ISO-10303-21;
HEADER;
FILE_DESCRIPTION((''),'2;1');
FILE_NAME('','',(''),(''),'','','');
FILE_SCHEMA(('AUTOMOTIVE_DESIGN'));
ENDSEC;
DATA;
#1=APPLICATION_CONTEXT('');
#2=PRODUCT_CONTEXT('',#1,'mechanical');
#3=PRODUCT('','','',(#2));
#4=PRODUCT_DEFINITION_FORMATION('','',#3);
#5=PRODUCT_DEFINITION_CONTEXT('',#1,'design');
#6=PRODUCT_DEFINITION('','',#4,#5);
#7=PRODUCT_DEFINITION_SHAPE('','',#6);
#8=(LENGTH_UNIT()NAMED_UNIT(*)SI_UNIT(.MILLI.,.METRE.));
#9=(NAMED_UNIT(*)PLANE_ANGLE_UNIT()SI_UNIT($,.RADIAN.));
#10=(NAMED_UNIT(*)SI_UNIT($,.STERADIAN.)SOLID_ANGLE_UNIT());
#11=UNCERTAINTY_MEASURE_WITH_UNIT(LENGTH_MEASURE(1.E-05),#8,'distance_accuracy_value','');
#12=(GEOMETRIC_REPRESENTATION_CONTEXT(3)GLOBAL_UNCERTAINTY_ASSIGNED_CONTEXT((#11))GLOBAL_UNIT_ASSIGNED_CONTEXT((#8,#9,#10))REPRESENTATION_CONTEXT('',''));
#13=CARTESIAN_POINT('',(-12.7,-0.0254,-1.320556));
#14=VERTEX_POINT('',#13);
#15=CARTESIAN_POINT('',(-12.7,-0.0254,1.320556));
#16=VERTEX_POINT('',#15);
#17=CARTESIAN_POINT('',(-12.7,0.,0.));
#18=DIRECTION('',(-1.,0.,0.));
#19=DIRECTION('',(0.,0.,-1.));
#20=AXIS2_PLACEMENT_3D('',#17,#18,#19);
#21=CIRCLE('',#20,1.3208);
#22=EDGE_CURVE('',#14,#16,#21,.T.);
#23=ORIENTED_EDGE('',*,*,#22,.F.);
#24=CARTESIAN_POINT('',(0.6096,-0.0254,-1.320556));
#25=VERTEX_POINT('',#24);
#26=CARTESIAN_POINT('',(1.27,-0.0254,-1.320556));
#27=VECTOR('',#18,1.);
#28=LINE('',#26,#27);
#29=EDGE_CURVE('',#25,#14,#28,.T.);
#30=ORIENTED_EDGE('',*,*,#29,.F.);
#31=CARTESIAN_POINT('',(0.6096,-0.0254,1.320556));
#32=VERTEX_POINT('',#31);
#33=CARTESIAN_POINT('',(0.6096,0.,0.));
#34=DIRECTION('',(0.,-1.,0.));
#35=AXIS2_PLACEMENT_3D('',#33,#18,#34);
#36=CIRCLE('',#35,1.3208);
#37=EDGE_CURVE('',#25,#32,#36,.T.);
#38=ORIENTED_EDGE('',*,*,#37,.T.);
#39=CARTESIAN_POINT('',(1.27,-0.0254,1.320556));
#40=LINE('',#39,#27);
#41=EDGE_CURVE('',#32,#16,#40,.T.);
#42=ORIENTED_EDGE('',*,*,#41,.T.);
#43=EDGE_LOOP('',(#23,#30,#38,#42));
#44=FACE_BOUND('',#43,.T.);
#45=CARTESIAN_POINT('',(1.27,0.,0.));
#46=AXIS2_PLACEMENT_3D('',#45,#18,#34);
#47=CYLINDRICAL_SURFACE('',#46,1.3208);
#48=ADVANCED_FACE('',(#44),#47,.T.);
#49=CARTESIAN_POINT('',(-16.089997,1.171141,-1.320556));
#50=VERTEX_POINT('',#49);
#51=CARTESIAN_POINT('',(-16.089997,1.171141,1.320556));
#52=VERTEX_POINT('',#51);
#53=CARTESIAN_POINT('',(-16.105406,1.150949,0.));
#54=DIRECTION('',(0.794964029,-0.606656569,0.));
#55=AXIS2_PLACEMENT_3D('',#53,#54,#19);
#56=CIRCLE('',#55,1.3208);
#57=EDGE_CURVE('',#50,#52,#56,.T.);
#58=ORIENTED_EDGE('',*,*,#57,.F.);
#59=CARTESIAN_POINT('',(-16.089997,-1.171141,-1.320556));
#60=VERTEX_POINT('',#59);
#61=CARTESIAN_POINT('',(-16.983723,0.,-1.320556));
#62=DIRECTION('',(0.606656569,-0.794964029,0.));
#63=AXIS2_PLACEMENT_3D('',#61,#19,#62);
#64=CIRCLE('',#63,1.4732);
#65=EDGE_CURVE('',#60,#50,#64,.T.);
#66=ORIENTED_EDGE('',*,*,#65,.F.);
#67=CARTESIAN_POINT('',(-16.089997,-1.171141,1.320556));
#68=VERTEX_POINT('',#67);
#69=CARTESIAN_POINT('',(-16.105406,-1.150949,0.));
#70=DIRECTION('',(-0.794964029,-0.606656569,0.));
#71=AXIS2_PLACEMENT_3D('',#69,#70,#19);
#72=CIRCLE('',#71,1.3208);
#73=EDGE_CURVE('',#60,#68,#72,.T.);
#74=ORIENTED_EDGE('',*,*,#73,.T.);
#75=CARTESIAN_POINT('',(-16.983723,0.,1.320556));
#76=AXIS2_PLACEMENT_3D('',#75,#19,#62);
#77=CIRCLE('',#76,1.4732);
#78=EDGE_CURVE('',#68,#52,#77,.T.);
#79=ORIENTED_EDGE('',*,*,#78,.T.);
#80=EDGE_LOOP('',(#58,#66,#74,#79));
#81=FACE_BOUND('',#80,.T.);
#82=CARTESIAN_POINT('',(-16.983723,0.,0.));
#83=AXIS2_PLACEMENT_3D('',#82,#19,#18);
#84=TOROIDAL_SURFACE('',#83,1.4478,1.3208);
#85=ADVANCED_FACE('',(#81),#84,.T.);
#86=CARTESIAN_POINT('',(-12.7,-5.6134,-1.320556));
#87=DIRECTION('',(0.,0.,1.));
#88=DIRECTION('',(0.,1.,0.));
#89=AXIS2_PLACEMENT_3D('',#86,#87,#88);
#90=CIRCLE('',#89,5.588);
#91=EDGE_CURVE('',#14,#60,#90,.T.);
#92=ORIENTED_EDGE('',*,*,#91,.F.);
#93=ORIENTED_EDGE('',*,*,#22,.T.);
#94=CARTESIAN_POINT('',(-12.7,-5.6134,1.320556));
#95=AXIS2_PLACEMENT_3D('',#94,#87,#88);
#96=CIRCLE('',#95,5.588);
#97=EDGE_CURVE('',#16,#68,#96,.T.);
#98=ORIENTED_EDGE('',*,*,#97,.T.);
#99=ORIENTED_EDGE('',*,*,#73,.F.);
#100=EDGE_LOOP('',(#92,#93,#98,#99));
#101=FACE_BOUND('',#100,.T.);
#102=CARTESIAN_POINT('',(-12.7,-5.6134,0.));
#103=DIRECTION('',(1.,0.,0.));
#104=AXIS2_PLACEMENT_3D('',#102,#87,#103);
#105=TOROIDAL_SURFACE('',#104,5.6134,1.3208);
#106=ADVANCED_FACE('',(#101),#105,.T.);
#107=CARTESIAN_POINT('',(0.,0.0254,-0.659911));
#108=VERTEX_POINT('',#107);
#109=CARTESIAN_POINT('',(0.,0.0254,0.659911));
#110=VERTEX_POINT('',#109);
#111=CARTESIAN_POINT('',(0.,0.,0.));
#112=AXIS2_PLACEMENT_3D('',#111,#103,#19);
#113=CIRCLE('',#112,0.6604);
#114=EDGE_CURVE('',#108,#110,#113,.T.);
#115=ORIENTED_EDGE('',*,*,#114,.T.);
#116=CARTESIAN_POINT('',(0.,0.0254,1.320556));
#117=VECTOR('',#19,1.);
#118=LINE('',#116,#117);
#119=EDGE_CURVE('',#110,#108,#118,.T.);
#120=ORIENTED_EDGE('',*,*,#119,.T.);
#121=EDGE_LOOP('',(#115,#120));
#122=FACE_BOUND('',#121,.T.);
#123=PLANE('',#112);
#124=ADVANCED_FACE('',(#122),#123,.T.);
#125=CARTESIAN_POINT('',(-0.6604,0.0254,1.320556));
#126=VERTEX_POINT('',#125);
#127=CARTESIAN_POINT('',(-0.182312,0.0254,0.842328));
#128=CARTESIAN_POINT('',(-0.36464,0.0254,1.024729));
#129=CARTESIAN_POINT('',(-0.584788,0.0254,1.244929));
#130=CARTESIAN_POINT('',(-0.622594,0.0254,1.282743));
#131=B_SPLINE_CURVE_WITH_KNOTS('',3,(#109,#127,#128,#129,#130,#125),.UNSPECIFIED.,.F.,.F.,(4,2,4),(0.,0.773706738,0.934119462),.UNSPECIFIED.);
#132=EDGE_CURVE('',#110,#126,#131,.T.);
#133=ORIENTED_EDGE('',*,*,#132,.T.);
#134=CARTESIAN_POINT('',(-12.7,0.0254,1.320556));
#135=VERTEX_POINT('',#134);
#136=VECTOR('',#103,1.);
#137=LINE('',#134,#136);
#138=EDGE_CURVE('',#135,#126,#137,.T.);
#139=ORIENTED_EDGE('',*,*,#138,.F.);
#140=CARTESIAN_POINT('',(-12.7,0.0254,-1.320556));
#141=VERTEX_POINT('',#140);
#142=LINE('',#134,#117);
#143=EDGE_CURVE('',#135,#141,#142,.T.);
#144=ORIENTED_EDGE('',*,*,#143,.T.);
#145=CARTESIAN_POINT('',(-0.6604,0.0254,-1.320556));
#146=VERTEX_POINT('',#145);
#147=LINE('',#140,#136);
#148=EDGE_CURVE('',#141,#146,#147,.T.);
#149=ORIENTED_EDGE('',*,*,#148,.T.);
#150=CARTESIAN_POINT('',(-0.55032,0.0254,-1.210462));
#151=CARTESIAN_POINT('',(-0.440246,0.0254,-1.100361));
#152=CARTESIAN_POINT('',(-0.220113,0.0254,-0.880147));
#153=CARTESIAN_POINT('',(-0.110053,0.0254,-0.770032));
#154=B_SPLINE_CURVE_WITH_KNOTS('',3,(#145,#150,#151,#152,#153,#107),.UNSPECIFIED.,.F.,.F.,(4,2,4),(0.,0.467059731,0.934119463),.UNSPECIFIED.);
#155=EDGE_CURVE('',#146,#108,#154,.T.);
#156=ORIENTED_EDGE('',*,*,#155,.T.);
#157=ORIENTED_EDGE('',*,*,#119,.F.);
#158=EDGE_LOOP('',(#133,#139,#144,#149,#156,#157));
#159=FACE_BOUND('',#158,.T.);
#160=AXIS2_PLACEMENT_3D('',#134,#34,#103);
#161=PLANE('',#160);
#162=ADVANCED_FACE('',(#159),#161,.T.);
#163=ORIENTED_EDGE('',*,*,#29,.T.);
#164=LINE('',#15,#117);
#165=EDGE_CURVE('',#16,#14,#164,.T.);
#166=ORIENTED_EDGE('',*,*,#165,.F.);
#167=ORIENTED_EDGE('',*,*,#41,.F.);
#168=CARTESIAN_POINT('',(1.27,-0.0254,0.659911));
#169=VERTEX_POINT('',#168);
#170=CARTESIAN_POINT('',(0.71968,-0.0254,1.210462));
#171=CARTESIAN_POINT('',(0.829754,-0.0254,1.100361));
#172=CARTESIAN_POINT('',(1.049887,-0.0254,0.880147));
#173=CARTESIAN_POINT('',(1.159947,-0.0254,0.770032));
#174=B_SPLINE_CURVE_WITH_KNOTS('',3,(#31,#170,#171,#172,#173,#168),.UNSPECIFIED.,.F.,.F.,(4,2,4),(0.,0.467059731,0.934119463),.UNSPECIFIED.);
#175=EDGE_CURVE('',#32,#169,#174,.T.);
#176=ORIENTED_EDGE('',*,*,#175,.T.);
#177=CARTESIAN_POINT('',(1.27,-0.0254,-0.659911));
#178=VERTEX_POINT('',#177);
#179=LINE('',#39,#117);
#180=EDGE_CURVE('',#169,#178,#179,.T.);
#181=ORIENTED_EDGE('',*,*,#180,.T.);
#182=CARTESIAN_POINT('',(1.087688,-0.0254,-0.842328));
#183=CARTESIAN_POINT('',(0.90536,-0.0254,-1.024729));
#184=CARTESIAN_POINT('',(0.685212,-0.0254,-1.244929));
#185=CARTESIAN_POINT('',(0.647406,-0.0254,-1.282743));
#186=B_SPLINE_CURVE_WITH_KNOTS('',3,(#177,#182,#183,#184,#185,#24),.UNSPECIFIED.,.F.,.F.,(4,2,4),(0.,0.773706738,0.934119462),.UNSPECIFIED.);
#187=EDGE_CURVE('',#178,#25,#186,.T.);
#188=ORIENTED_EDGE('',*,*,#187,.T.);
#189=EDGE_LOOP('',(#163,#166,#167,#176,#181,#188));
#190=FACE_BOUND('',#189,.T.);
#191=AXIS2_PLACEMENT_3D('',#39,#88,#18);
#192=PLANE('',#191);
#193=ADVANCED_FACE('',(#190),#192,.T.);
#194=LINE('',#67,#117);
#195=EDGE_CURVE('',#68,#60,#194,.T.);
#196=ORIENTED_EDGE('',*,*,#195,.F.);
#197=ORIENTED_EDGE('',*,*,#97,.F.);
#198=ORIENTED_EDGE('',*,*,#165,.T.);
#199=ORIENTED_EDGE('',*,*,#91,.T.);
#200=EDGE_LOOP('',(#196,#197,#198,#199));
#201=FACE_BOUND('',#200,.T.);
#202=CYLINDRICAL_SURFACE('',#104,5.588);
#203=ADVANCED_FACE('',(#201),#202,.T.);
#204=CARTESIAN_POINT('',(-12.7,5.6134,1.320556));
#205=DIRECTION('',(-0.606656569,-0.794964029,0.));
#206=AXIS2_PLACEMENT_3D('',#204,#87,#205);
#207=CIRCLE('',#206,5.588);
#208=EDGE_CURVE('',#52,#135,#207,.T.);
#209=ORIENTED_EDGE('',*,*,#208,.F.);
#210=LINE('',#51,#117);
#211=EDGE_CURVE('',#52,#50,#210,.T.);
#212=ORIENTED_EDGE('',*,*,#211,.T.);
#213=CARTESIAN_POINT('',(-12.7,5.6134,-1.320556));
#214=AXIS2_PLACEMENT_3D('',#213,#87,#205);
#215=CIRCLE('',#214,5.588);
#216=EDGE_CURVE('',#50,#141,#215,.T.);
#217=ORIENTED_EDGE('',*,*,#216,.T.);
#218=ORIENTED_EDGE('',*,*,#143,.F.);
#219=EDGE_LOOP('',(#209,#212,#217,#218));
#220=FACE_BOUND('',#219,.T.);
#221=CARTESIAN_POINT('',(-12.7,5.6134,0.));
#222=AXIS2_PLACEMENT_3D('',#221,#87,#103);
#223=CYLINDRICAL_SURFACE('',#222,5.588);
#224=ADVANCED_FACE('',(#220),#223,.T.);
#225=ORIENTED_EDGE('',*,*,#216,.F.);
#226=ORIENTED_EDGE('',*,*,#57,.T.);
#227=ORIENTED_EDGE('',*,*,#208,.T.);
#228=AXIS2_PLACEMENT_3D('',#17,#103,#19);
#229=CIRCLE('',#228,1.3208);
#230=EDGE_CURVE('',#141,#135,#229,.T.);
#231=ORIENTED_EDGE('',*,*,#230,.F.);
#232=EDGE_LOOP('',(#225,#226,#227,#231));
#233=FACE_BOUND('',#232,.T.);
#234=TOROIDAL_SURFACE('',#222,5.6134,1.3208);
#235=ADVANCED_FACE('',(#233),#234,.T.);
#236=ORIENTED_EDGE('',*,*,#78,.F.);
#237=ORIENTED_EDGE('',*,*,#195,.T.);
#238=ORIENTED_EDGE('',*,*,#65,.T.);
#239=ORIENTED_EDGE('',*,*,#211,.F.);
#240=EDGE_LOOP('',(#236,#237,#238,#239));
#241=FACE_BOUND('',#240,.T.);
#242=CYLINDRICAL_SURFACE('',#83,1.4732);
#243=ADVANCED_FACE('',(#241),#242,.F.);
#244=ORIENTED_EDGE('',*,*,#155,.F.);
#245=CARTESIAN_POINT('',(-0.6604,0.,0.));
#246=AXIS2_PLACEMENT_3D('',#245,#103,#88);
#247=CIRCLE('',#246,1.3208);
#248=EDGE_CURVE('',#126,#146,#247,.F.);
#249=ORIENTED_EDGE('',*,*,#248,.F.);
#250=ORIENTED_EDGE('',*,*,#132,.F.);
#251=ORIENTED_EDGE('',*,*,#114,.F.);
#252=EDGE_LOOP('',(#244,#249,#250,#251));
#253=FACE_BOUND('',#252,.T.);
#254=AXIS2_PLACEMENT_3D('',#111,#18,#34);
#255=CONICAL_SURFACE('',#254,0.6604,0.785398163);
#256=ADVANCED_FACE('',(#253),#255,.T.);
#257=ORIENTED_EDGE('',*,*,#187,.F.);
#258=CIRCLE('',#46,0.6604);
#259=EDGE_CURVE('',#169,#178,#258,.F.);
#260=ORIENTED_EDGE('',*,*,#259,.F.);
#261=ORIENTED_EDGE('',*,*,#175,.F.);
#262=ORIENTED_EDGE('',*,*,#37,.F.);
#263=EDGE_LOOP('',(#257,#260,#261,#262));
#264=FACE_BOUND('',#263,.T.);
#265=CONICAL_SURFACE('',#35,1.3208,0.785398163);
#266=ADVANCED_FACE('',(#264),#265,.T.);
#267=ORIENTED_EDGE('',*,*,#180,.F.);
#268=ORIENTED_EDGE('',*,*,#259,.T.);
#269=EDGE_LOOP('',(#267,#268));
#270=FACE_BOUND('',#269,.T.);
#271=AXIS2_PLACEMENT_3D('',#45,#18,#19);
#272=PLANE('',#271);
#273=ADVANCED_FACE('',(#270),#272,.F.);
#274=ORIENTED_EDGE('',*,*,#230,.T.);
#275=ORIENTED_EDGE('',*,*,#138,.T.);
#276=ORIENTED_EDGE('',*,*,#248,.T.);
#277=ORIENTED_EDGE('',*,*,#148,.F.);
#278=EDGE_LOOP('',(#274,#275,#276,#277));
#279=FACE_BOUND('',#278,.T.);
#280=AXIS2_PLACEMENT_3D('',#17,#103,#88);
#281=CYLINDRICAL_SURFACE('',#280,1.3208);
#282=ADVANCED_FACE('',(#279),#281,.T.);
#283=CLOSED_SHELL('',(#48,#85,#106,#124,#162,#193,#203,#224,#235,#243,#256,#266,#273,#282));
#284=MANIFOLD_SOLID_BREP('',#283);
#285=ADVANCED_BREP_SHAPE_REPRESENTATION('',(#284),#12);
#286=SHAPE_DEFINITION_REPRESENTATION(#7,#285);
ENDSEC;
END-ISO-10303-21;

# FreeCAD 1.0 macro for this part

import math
import FreeCAD as App
import Part
import Sketcher

V = App.Vector
Q = App.Units.Quantity


def edges_at(feature, points):
    """Names of the edges that pass closest to the given points."""
    edges = feature.Shape.Edges
    near = lambda p: min(range(len(edges)), key=lambda i: edges[i].distToShape(Part.Vertex(*p))[0])
    return sorted({f"Edge{near(p) + 1}" for p in points})

doc = App.newDocument("Part")
body = doc.addObject("PartDesign::Body", "Body")

sketch1 = body.newObject("Sketcher::SketchObject", "Sketch")
sketch1.AttachmentSupport = (doc.getObject("YZ_Plane"), [""])
sketch1.MapMode = "FlatFace"
sketch1.addGeometry([
    Part.LineSegment(V(0.0254, 1.320556, 0), V(0.0254, -1.320556, 0)),
    Part.ArcOfCircle(Part.Circle(V(0, 0, 0), V(0, 0, 1), 1.3208), math.radians(-88.89809), math.radians(88.89809)),
], False)
sketch1.addConstraint([
    Sketcher.Constraint("Coincident", 0, 1, 1, 2),
    Sketcher.Constraint("Coincident", 1, 1, 0, 2),
    Sketcher.Constraint("Vertical", 0),
    Sketcher.Constraint("Coincident", 1, 3, -1, 1),
    Sketcher.Constraint("Radius", 1, Q("0.052 in")),
    Sketcher.Constraint("DistanceX", -1, 1, 0, 1, Q("0.001 in")),
])

sketch2 = body.newObject("Sketcher::SketchObject", "Sketch001")
sketch2.AttachmentSupport = (doc.getObject("XY_Plane"), [""])
sketch2.MapMode = "FlatFace"
sketch2.addGeometry([
    Part.LineSegment(V(1.27, -0.0254, 0), V(-12.7, -0.0254, 0)),
    Part.ArcOfCircle(Part.Circle(V(-12.7, -5.6134, 0), V(0, 0, 1), 5.588), math.radians(90), math.radians(127.348142)),
    Part.ArcOfCircle(Part.Circle(V(-16.983723, 0, 0), V(0, 0, 1), 1.4732), math.radians(52.651858), math.radians(307.348142)),
    Part.ArcOfCircle(Part.Circle(V(-12.7, 5.6134, 0), V(0, 0, 1), 5.588), math.radians(-127.348142), math.radians(-90)),
    Part.LineSegment(V(-12.7, 0.0254, 0), V(0, 0.0254, 0)),
], False)
sketch2.addConstraint([
    Sketcher.Constraint("Tangent", 0, 2, 1, 1),
    Sketcher.Constraint("Tangent", 1, 2, 2, 2),
    Sketcher.Constraint("Tangent", 2, 1, 3, 1),
    Sketcher.Constraint("Tangent", 3, 2, 4, 1),
    Sketcher.Constraint("Horizontal", 0),
    Sketcher.Constraint("Horizontal", 4),
    Sketcher.Constraint("Equal", 1, 3),
    Sketcher.Constraint("Symmetric", 1, 3, 3, 3, -1),
    Sketcher.Constraint("PointOnObject", 4, 2, -2),
    Sketcher.Constraint("Radius", 1, Q("0.22 in")),
    Sketcher.Constraint("DistanceX", 4, 1, 4, 2, Q("0.5 in")),
    Sketcher.Constraint("Radius", 2, Q("0.058 in")),
    Sketcher.Constraint("DistanceX", 0, 2, 0, 1, Q("0.55 in")),
    Sketcher.Constraint("DistanceY", 1, 3, -1, 1, Q("0.221 in")),
])
doc.recompute()

additivepipe = body.newObject("PartDesign::AdditivePipe", "AdditivePipe")
additivepipe.Profile = sketch1
additivepipe.Spine = (sketch2, ["Edge1", "Edge2", "Edge3", "Edge4", "Edge5"])
doc.recompute()

chamfer = body.newObject("PartDesign::Chamfer", "Chamfer")
chamfer.Base = (additivepipe, edges_at(additivepipe, [(0, 1.321, 0), (1.27, -1.321, 0)]))
chamfer.Size = Q("0.026 in")

doc.recompute()
